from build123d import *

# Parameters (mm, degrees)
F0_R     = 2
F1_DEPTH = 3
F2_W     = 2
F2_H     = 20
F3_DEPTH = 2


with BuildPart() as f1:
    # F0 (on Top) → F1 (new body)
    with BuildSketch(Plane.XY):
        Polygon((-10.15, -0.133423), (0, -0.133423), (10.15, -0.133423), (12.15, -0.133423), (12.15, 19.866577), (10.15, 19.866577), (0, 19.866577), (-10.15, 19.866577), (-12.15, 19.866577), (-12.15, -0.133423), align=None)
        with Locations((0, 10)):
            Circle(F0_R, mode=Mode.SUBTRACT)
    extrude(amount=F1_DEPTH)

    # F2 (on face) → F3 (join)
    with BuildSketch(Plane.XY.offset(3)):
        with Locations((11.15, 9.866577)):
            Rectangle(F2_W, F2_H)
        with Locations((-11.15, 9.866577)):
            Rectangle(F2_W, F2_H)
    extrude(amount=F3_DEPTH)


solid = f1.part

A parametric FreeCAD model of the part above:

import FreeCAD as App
import Part
import Sketcher

V = App.Vector
Q = App.Units.Quantity


def add_polygon(sketch, points):
    """Adds a closed chain of lines whose ends are joined by coincident constraints."""
    first, n = sketch.GeometryCount, len(points)
    for a, b in zip(points, points[1:] + points[:1]):
        sketch.addGeometry(Part.LineSegment(App.Vector(*a, 0), App.Vector(*b, 0)), False)
    for i in range(n):
        sketch.addConstraint(Sketcher.Constraint("Coincident", first + i, 2, first + (i + 1) % n, 1))

doc = App.newDocument("Part")
body = doc.addObject("PartDesign::Body", "Body")

sketch1 = body.newObject("Sketcher::SketchObject", "Sketch")
sketch1.AttachmentSupport = (doc.getObject("XY_Plane"), [""])
sketch1.MapMode = "FlatFace"
add_polygon(sketch1, [(12.2, -0.1), (12.2, 19.9), (-12.2, 19.9), (-12.2, -0.1)])
sketch1.addGeometry(Part.Circle(V(0, 10, 0), V(0, 0, 1), 2), False)
sketch1.addConstraint(Sketcher.Constraint("Vertical", 0))
sketch1.addConstraint(Sketcher.Constraint("Horizontal", 1))
sketch1.addConstraint(Sketcher.Constraint("Vertical", 2))
sketch1.addConstraint(Sketcher.Constraint("Horizontal", 3))
sketch1.addConstraint(Sketcher.Constraint("PointOnObject", 4, 3, -2))
sketch1.addConstraint(Sketcher.Constraint("Diameter", 4, Q("4 mm")))
sketch1.addConstraint(Sketcher.Constraint("DistanceY", 0, 1, 0, 2, Q("20 mm")))
sketch1.addConstraint(Sketcher.Constraint("DistanceX", 1, 2, 1, 1, Q("24.3 mm")))
sketch1.addConstraint(Sketcher.Constraint("DistanceY", -1, 1, 4, 3, Q("10 mm")))
sketch1.addConstraint(Sketcher.Constraint("DistanceX", -1, 1, 0, 2, Q("12.15 mm")))
sketch1.addConstraint(Sketcher.Constraint("DistanceY", -1, 1, 0, 2, Q("19.866577 mm")))
pad1 = body.newObject("PartDesign::Pad", "Pad")
pad1.Profile = sketch1
pad1.Length = 3

sketch2 = body.newObject("Sketcher::SketchObject", "Sketch001")
sketch2.AttachmentSupport = (doc.getObject("XY_Plane"), [""])
sketch2.MapMode = "FlatFace"
sketch2.AttachmentOffset = App.Placement(V(0, 0, 3), App.Rotation())
add_polygon(sketch2, [(10.2, 19.9), (10.2, -0.1), (12.2, -0.1), (12.2, 19.9)])
add_polygon(sketch2, [(-12.2, 19.9), (-12.2, -0.1), (-10.2, -0.1), (-10.2, 19.9)])
sketch2.addConstraint(Sketcher.Constraint("Vertical", 0))
sketch2.addConstraint(Sketcher.Constraint("Horizontal", 1))
sketch2.addConstraint(Sketcher.Constraint("Vertical", 2))
sketch2.addConstraint(Sketcher.Constraint("Horizontal", 3))
sketch2.addConstraint(Sketcher.Constraint("Vertical", 4))
sketch2.addConstraint(Sketcher.Constraint("Horizontal", 5))
sketch2.addConstraint(Sketcher.Constraint("Vertical", 6))
sketch2.addConstraint(Sketcher.Constraint("Horizontal", 7))
sketch2.addConstraint(Sketcher.Constraint("Symmetric", 1, 2, 4, 2, -2))
sketch2.addConstraint(Sketcher.Constraint("Symmetric", 3, 2, 6, 2, -2))
sketch2.addConstraint(Sketcher.Constraint("DistanceX", 1, 1, 1, 2, Q("2 mm")))
sketch2.addConstraint(Sketcher.Constraint("DistanceY", 0, 2, 0, 1, Q("20 mm")))
sketch2.addConstraint(Sketcher.Constraint("DistanceX", 4, 2, 0, 2, Q("22.3 mm")))
sketch2.addConstraint(Sketcher.Constraint("DistanceY", 0, 2, -1, 1, Q("0.133423 mm")))
pad2 = body.newObject("PartDesign::Pad", "Pad001")
pad2.Profile = sketch2
pad2.Length = 2

doc.recompute()
